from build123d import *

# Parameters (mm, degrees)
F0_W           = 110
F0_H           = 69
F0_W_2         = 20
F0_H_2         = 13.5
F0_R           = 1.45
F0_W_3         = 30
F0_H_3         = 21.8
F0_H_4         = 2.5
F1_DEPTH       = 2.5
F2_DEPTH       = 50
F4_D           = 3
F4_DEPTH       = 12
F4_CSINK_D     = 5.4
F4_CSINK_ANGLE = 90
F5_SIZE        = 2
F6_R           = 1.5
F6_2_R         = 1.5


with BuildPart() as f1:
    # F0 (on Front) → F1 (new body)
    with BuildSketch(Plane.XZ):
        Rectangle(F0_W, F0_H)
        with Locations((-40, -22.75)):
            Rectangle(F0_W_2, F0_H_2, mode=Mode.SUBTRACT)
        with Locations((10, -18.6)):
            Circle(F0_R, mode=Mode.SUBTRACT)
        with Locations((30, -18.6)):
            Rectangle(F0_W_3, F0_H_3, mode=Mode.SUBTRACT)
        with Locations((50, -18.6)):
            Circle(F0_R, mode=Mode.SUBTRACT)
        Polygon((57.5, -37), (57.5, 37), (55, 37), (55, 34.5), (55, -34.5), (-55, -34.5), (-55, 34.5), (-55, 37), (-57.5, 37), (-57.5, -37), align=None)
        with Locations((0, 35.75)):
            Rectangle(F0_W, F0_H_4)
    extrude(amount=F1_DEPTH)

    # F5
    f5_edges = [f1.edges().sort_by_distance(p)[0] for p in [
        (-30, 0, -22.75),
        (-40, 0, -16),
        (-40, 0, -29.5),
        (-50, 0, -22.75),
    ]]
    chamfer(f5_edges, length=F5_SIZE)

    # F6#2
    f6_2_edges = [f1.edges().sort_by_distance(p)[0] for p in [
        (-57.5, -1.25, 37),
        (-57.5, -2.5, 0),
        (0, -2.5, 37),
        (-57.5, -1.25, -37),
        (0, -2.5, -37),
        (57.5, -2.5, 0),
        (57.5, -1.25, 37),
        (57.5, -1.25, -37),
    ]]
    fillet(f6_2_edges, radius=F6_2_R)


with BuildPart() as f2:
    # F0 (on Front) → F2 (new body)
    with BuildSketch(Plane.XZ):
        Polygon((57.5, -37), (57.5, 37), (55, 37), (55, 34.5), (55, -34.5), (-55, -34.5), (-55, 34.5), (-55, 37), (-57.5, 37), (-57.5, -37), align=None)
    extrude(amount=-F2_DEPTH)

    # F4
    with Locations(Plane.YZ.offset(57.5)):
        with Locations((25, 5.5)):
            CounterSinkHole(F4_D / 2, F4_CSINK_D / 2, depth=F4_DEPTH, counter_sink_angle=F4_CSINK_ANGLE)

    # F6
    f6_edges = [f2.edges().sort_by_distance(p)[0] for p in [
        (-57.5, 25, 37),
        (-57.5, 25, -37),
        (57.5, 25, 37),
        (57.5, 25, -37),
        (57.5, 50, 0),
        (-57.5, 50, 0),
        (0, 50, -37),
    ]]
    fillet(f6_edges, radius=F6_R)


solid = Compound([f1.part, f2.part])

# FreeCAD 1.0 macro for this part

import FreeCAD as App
import Part
import Sketcher
Q = App.Units.Quantity


def edges_at(feature, points):
    """Names of the edges that pass closest to the given points."""
    edges = feature.Shape.Edges
    near = lambda p: min(range(len(edges)), key=lambda i: edges[i].distToShape(Part.Vertex(*p))[0])
    return sorted({f"Edge{near(p) + 1}" for p in points})

doc = App.newDocument("Part")
body = doc.addObject("PartDesign::Body", "Body")

# Sketch on XZ plane
sketch1 = body.newObject("Sketcher::SketchObject", "Sketch")
sketch1.AttachmentSupport = (doc.getObject("XZ_Plane"), [""])
sketch1.MapMode = "FlatFace"
sketch1.addGeometry(Part.LineSegment(App.Vector(-57.5, 37, 0), App.Vector(-57.5, -37, 0)), False)
sketch1.addGeometry(Part.LineSegment(App.Vector(-57.5, -37, 0), App.Vector(57.5, -37, 0)), False)
sketch1.addGeometry(Part.LineSegment(App.Vector(57.5, -37, 0), App.Vector(57.5, 37, 0)), False)
sketch1.addGeometry(Part.LineSegment(App.Vector(57.5, 37, 0), App.Vector(-57.5, 37, 0)), False)
sketch1.addGeometry(Part.LineSegment(App.Vector(-30, -29.5, 0), App.Vector(-50, -29.5, 0)), False)
sketch1.addGeometry(Part.LineSegment(App.Vector(-50, -29.5, 0), App.Vector(-50, -16, 0)), False)
sketch1.addGeometry(Part.LineSegment(App.Vector(-50, -16, 0), App.Vector(-30, -16, 0)), False)
sketch1.addGeometry(Part.LineSegment(App.Vector(-30, -16, 0), App.Vector(-30, -29.5, 0)), False)
sketch1.addGeometry(Part.Circle(App.Vector(10, -18.6, 0), App.Vector(0, 0, 1), 1.4), False)
sketch1.addGeometry(Part.LineSegment(App.Vector(45, -29.5, 0), App.Vector(15, -29.5, 0)), False)
sketch1.addGeometry(Part.LineSegment(App.Vector(15, -29.5, 0), App.Vector(15, -7.7, 0)), False)
sketch1.addGeometry(Part.LineSegment(App.Vector(15, -7.7, 0), App.Vector(45, -7.7, 0)), False)
sketch1.addGeometry(Part.LineSegment(App.Vector(45, -7.7, 0), App.Vector(45, -29.5, 0)), False)
sketch1.addGeometry(Part.Circle(App.Vector(50, -18.6, 0), App.Vector(0, 0, 1), 1.4), False)
sketch1.addConstraint(Sketcher.Constraint("Coincident", 0, 2, 1, 1))
sketch1.addConstraint(Sketcher.Constraint("Coincident", 1, 2, 2, 1))
sketch1.addConstraint(Sketcher.Constraint("Coincident", 2, 2, 3, 1))
sketch1.addConstraint(Sketcher.Constraint("Coincident", 3, 2, 0, 1))
sketch1.addConstraint(Sketcher.Constraint("Coincident", 4, 2, 5, 1))
sketch1.addConstraint(Sketcher.Constraint("Coincident", 5, 2, 6, 1))
sketch1.addConstraint(Sketcher.Constraint("Coincident", 6, 2, 7, 1))
sketch1.addConstraint(Sketcher.Constraint("Coincident", 7, 2, 4, 1))
sketch1.addConstraint(Sketcher.Constraint("Coincident", 9, 2, 10, 1))
sketch1.addConstraint(Sketcher.Constraint("Coincident", 10, 2, 11, 1))
sketch1.addConstraint(Sketcher.Constraint("Coincident", 11, 2, 12, 1))
sketch1.addConstraint(Sketcher.Constraint("Coincident", 12, 2, 9, 1))
sketch1.addConstraint(Sketcher.Constraint("Vertical", 0))
sketch1.addConstraint(Sketcher.Constraint("Horizontal", 1))
sketch1.addConstraint(Sketcher.Constraint("Vertical", 2))
sketch1.addConstraint(Sketcher.Constraint("Horizontal", 3))
sketch1.addConstraint(Sketcher.Constraint("Horizontal", 4))
sketch1.addConstraint(Sketcher.Constraint("Vertical", 5))
sketch1.addConstraint(Sketcher.Constraint("Horizontal", 6))
sketch1.addConstraint(Sketcher.Constraint("Vertical", 7))
sketch1.addConstraint(Sketcher.Constraint("Horizontal", 9))
sketch1.addConstraint(Sketcher.Constraint("Vertical", 10))
sketch1.addConstraint(Sketcher.Constraint("Horizontal", 11))
sketch1.addConstraint(Sketcher.Constraint("Vertical", 12))
sketch1.addConstraint(Sketcher.Constraint("Equal", 8, 13))
sketch1.addConstraint(Sketcher.Constraint("Symmetric", 0, 2, 2, 2, -1, 1))
sketch1.addConstraint(Sketcher.Constraint("Horizontal", 8, 3, 13, 3))
sketch1.addConstraint(Sketcher.Constraint("Horizontal", 7, 2, 9, 2))
sketch1.addConstraint(Sketcher.Constraint("Diameter", 8, Q("2.9 mm")))
sketch1.addConstraint(Sketcher.Constraint("DistanceX", 1, 1, 1, 2, Q("115 mm")))
sketch1.addConstraint(Sketcher.Constraint("DistanceX", 4, 2, 4, 1, Q("20 mm")))
sketch1.addConstraint(Sketcher.Constraint("DistanceX", 9, 2, 9, 1, Q("30 mm")))
sketch1.addConstraint(Sketcher.Constraint("DistanceY", 0, 2, 0, 1, Q("74 mm")))
sketch1.addConstraint(Sketcher.Constraint("DistanceY", 5, 1, 5, 2, Q("13.5 mm")))
sketch1.addConstraint(Sketcher.Constraint("DistanceY", 10, 1, 10, 2, Q("21.8 mm")))
sketch1.addConstraint(Sketcher.Constraint("DistanceX", -1, 1, 8, 3, Q("10 mm")))
sketch1.addConstraint(Sketcher.Constraint("DistanceX", -1, 1, 13, 3, Q("50 mm")))
sketch1.addConstraint(Sketcher.Constraint("DistanceX", 4, 2, -1, 1, Q("50 mm")))
sketch1.addConstraint(Sketcher.Constraint("DistanceY", 5, 2, -1, 1, Q("16 mm")))
sketch1.addConstraint(Sketcher.Constraint("DistanceX", -1, 1, 9, 2, Q("15 mm")))
sketch1.addConstraint(Sketcher.Constraint("DistanceY", 8, 3, -1, 1, Q("18.6 mm")))
pad1 = body.newObject("PartDesign::Pad", "Pad")
pad1.Profile = sketch1
pad1.Length = 2.5
doc.recompute()

chamfer = body.newObject("PartDesign::Chamfer", "Chamfer")
chamfer.Base = (pad1, edges_at(pad1, [
    (-30, 0, -22.75),
    (-40, 0, -16),
    (-40, 0, -29.5),
    (-50, 0, -22.75),
]))
chamfer.Size = 2
doc.recompute()

fillet = body.newObject("PartDesign::Fillet", "Fillet")
fillet.Base = (chamfer, edges_at(chamfer, [
    (-57.5, -1.25, 37),
    (-57.5, -2.5, 0),
    (0, -2.5, 37),
    (-57.5, -1.25, -37),
    (0, -2.5, -37),
    (57.5, -2.5, 0),
    (57.5, -1.25, 37),
    (57.5, -1.25, -37),
]))
fillet.Radius = 1.5
body2 = doc.addObject("PartDesign::Body", "Body001")

# Sketch on XZ plane
sketch2 = body2.newObject("Sketcher::SketchObject", "Sketch001")
sketch2.AttachmentSupport = (doc.getObject("XZ_Plane001"), [""])
sketch2.MapMode = "FlatFace"
sketch2.addGeometry(Part.LineSegment(App.Vector(57.5, -37, 0), App.Vector(57.5, 37, 0)), False)
sketch2.addGeometry(Part.LineSegment(App.Vector(57.5, 37, 0), App.Vector(55, 37, 0)), False)
sketch2.addGeometry(Part.LineSegment(App.Vector(55, 37, 0), App.Vector(55, -34.5, 0)), False)
sketch2.addGeometry(Part.LineSegment(App.Vector(55, -34.5, 0), App.Vector(-55, -34.5, 0)), False)
sketch2.addGeometry(Part.LineSegment(App.Vector(-55, -34.5, 0), App.Vector(-55, 37, 0)), False)
sketch2.addGeometry(Part.LineSegment(App.Vector(-55, 37, 0), App.Vector(-57.5, 37, 0)), False)
sketch2.addGeometry(Part.LineSegment(App.Vector(-57.5, 37, 0), App.Vector(-57.5, -37, 0)), False)
sketch2.addGeometry(Part.LineSegment(App.Vector(-57.5, -37, 0), App.Vector(57.5, -37, 0)), False)
sketch2.addConstraint(Sketcher.Constraint("Coincident", 0, 2, 1, 1))
sketch2.addConstraint(Sketcher.Constraint("Coincident", 1, 2, 2, 1))
sketch2.addConstraint(Sketcher.Constraint("Coincident", 2, 2, 3, 1))
sketch2.addConstraint(Sketcher.Constraint("Coincident", 3, 2, 4, 1))
sketch2.addConstraint(Sketcher.Constraint("Coincident", 4, 2, 5, 1))
sketch2.addConstraint(Sketcher.Constraint("Coincident", 5, 2, 6, 1))
sketch2.addConstraint(Sketcher.Constraint("Coincident", 6, 2, 7, 1))
sketch2.addConstraint(Sketcher.Constraint("Coincident", 7, 2, 0, 1))
sketch2.addConstraint(Sketcher.Constraint("Vertical", 0))
sketch2.addConstraint(Sketcher.Constraint("Horizontal", 1))
sketch2.addConstraint(Sketcher.Constraint("Vertical", 2))
sketch2.addConstraint(Sketcher.Constraint("Horizontal", 3))
sketch2.addConstraint(Sketcher.Constraint("Vertical", 4))
sketch2.addConstraint(Sketcher.Constraint("Horizontal", 5))
sketch2.addConstraint(Sketcher.Constraint("Vertical", 6))
sketch2.addConstraint(Sketcher.Constraint("Horizontal", 7))
sketch2.addConstraint(Sketcher.Constraint("Symmetric", 0, 2, 6, 2, -1, 1))
sketch2.addConstraint(Sketcher.Constraint("Symmetric", 1, 2, 4, 2, -2))
sketch2.addConstraint(Sketcher.Constraint("DistanceX", 3, 2, 3, 1, Q("110 mm")))
sketch2.addConstraint(Sketcher.Constraint("DistanceX", 7, 1, 7, 2, Q("115 mm")))
sketch2.addConstraint(Sketcher.Constraint("DistanceY", 0, 1, 0, 2, Q("74 mm")))
sketch2.addConstraint(Sketcher.Constraint("DistanceY", 2, 2, 2, 1, Q("71.5 mm")))
pad2 = body2.newObject("PartDesign::Pad", "Pad001")
pad2.Profile = sketch2
pad2.Length = 50
pad2.Reversed = True

# Sketch on YZ plane
sketch3 = body2.newObject("Sketcher::SketchObject", "Sketch002")
sketch3.AttachmentSupport = (doc.getObject("YZ_Plane001"), [""])
sketch3.MapMode = "FlatFace"
sketch3.AttachmentOffset = App.Placement(App.Vector(0, 0, 57.5), App.Rotation())
sketch3.addGeometry(Part.Circle(App.Vector(25, 5.5, 0), App.Vector(0, 0, 1), 1.5), False)
sketch3.addConstraint(Sketcher.Constraint("Diameter", 0, Q("3 mm")))
sketch3.addConstraint(Sketcher.Constraint("DistanceX", -1, 1, 0, 3, Q("25 mm")))
sketch3.addConstraint(Sketcher.Constraint("DistanceY", -1, 1, 0, 3, Q("5.5 mm")))
doc.recompute()
hole = body2.newObject("PartDesign::Hole", "Hole")
hole.Profile = sketch3
hole.ThreadType = "None"
hole.Diameter = 3
hole.DepthType = "Dimension"
hole.Depth = 12
hole.DrillPoint = "Flat"
hole.HoleCutType = "Countersink"
hole.HoleCutDiameter = 5.4
hole.HoleCutCountersinkAngle = 90
doc.recompute()

fillet2 = body2.newObject("PartDesign::Fillet", "Fillet001")
fillet2.Base = (hole, edges_at(hole, [
    (-57.5, 25, 37),
    (-57.5, 25, -37),
    (57.5, 25, 37),
    (57.5, 25, -37),
    (57.5, 50, 0),
    (-57.5, 50, 0),
    (0, 50, -37),
]))
fillet2.Radius = 1.5

doc.recompute()
